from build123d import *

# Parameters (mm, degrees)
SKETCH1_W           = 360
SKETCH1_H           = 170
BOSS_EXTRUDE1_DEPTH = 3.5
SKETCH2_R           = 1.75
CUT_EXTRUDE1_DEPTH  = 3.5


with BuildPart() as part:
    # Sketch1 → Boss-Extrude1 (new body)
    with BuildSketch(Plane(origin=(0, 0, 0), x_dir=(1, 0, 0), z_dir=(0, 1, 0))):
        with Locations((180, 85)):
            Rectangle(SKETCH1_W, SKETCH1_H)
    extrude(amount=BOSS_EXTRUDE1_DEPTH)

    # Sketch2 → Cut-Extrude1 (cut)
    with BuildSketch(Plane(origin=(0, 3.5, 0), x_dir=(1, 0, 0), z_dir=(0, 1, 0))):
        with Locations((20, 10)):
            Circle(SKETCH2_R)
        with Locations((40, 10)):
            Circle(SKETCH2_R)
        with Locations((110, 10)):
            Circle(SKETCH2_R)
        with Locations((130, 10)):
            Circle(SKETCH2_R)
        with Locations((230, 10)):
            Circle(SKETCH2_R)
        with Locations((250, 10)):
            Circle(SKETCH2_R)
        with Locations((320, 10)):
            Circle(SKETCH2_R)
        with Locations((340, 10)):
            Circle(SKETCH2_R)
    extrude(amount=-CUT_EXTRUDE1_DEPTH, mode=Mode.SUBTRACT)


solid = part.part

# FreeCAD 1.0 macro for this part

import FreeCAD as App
import Part
import Sketcher
from FreeCAD import Vector


def add_polygon(sketch, points):
    """Adds a closed chain of lines whose ends are joined by coincident constraints."""
    first, n = sketch.GeometryCount, len(points)
    for a, b in zip(points, points[1:] + points[:1]):
        sketch.addGeometry(Part.LineSegment(App.Vector(*a, 0), App.Vector(*b, 0)), False)
    for i in range(n):
        sketch.addConstraint(Sketcher.Constraint("Coincident", first + i, 2, first + (i + 1) % n, 1))

doc = App.newDocument("Part")
body = doc.addObject("PartDesign::Body", "Body")

sketch1 = doc.addObject("Sketcher::SketchObject", "Sketch")
body.addObject(sketch1)
sketch1.AttachmentSupport = (doc.XZ_Plane, [""])
sketch1.MapMode = "FlatFace"
add_polygon(sketch1, [(0, -170), (0, 0), (360, 0), (360, -170)])
sketch1.addConstraint([
    Sketcher.Constraint("Vertical", 0),
    Sketcher.Constraint("Horizontal", 1),
    Sketcher.Constraint("Vertical", 2),
    Sketcher.Constraint("Horizontal", 3),
    Sketcher.Constraint("Coincident", 0, 2, -1, 1),
    Sketcher.Constraint("DistanceX", 1, 1, 1, 2, 360.0),
    Sketcher.Constraint("DistanceY", 0, 1, 0, 2, 170.0),
])
pad1 = doc.addObject("PartDesign::Pad", "Pad")
body.addObject(pad1)
pad1.Profile = sketch1
pad1.Length = 3.5
pad1.Reversed = True

sketch2 = doc.addObject("Sketcher::SketchObject", "Sketch001")
body.addObject(sketch2)
sketch2.AttachmentSupport = (doc.XZ_Plane, [""])
sketch2.MapMode = "FlatFace"
sketch2.AttachmentOffset = App.Placement(Vector(0, 0, -3.5), App.Rotation())
sketch2.addGeometry([
    Part.Circle(Vector(20, -10, 0), Vector(0, 0, 1), 1.8),
    Part.Circle(Vector(40, -10, 0), Vector(0, 0, 1), 1.8),
    Part.Circle(Vector(110, -10, 0), Vector(0, 0, 1), 1.8),
    Part.Circle(Vector(130, -10, 0), Vector(0, 0, 1), 1.8),
    Part.Circle(Vector(230, -10, 0), Vector(0, 0, 1), 1.8),
    Part.Circle(Vector(250, -10, 0), Vector(0, 0, 1), 1.8),
    Part.Circle(Vector(320, -10, 0), Vector(0, 0, 1), 1.8),
    Part.Circle(Vector(340, -10, 0), Vector(0, 0, 1), 1.8),
], False)
sketch2.addConstraint([
    Sketcher.Constraint("Equal", 0, 1),
    Sketcher.Constraint("Equal", 1, 2),
    Sketcher.Constraint("Equal", 2, 3),
    Sketcher.Constraint("Equal", 3, 4),
    Sketcher.Constraint("Equal", 4, 5),
    Sketcher.Constraint("Equal", 5, 6),
    Sketcher.Constraint("Equal", 6, 7),
    Sketcher.Constraint("Horizontal", 0, 3, 1, 3),
    Sketcher.Constraint("Horizontal", 1, 3, 2, 3),
    Sketcher.Constraint("Horizontal", 2, 3, 3, 3),
    Sketcher.Constraint("Horizontal", 3, 3, 4, 3),
    Sketcher.Constraint("Horizontal", 4, 3, 5, 3),
    Sketcher.Constraint("Horizontal", 5, 3, 6, 3),
    Sketcher.Constraint("Horizontal", 6, 3, 7, 3),
    Sketcher.Constraint("Diameter", 0, 3.5),
    Sketcher.Constraint("DistanceX", -1, 1, 0, 3, 20.0),
    Sketcher.Constraint("DistanceY", 0, 3, -1, 1, 10.0),
    Sketcher.Constraint("DistanceX", -1, 1, 1, 3, 40.0),
    Sketcher.Constraint("DistanceX", -1, 1, 2, 3, 110.0),
    Sketcher.Constraint("DistanceX", -1, 1, 3, 3, 130.0),
    Sketcher.Constraint("DistanceX", -1, 1, 4, 3, 230.0),
    Sketcher.Constraint("DistanceX", -1, 1, 5, 3, 250.0),
    Sketcher.Constraint("DistanceX", -1, 1, 6, 3, 320.0),
    Sketcher.Constraint("DistanceX", -1, 1, 7, 3, 340.0),
])
pocket1 = doc.addObject("PartDesign::Pocket", "Pocket")
body.addObject(pocket1)
pocket1.Profile = sketch2
pocket1.Length = 3.5
pocket1.Reversed = True

doc.recompute()
